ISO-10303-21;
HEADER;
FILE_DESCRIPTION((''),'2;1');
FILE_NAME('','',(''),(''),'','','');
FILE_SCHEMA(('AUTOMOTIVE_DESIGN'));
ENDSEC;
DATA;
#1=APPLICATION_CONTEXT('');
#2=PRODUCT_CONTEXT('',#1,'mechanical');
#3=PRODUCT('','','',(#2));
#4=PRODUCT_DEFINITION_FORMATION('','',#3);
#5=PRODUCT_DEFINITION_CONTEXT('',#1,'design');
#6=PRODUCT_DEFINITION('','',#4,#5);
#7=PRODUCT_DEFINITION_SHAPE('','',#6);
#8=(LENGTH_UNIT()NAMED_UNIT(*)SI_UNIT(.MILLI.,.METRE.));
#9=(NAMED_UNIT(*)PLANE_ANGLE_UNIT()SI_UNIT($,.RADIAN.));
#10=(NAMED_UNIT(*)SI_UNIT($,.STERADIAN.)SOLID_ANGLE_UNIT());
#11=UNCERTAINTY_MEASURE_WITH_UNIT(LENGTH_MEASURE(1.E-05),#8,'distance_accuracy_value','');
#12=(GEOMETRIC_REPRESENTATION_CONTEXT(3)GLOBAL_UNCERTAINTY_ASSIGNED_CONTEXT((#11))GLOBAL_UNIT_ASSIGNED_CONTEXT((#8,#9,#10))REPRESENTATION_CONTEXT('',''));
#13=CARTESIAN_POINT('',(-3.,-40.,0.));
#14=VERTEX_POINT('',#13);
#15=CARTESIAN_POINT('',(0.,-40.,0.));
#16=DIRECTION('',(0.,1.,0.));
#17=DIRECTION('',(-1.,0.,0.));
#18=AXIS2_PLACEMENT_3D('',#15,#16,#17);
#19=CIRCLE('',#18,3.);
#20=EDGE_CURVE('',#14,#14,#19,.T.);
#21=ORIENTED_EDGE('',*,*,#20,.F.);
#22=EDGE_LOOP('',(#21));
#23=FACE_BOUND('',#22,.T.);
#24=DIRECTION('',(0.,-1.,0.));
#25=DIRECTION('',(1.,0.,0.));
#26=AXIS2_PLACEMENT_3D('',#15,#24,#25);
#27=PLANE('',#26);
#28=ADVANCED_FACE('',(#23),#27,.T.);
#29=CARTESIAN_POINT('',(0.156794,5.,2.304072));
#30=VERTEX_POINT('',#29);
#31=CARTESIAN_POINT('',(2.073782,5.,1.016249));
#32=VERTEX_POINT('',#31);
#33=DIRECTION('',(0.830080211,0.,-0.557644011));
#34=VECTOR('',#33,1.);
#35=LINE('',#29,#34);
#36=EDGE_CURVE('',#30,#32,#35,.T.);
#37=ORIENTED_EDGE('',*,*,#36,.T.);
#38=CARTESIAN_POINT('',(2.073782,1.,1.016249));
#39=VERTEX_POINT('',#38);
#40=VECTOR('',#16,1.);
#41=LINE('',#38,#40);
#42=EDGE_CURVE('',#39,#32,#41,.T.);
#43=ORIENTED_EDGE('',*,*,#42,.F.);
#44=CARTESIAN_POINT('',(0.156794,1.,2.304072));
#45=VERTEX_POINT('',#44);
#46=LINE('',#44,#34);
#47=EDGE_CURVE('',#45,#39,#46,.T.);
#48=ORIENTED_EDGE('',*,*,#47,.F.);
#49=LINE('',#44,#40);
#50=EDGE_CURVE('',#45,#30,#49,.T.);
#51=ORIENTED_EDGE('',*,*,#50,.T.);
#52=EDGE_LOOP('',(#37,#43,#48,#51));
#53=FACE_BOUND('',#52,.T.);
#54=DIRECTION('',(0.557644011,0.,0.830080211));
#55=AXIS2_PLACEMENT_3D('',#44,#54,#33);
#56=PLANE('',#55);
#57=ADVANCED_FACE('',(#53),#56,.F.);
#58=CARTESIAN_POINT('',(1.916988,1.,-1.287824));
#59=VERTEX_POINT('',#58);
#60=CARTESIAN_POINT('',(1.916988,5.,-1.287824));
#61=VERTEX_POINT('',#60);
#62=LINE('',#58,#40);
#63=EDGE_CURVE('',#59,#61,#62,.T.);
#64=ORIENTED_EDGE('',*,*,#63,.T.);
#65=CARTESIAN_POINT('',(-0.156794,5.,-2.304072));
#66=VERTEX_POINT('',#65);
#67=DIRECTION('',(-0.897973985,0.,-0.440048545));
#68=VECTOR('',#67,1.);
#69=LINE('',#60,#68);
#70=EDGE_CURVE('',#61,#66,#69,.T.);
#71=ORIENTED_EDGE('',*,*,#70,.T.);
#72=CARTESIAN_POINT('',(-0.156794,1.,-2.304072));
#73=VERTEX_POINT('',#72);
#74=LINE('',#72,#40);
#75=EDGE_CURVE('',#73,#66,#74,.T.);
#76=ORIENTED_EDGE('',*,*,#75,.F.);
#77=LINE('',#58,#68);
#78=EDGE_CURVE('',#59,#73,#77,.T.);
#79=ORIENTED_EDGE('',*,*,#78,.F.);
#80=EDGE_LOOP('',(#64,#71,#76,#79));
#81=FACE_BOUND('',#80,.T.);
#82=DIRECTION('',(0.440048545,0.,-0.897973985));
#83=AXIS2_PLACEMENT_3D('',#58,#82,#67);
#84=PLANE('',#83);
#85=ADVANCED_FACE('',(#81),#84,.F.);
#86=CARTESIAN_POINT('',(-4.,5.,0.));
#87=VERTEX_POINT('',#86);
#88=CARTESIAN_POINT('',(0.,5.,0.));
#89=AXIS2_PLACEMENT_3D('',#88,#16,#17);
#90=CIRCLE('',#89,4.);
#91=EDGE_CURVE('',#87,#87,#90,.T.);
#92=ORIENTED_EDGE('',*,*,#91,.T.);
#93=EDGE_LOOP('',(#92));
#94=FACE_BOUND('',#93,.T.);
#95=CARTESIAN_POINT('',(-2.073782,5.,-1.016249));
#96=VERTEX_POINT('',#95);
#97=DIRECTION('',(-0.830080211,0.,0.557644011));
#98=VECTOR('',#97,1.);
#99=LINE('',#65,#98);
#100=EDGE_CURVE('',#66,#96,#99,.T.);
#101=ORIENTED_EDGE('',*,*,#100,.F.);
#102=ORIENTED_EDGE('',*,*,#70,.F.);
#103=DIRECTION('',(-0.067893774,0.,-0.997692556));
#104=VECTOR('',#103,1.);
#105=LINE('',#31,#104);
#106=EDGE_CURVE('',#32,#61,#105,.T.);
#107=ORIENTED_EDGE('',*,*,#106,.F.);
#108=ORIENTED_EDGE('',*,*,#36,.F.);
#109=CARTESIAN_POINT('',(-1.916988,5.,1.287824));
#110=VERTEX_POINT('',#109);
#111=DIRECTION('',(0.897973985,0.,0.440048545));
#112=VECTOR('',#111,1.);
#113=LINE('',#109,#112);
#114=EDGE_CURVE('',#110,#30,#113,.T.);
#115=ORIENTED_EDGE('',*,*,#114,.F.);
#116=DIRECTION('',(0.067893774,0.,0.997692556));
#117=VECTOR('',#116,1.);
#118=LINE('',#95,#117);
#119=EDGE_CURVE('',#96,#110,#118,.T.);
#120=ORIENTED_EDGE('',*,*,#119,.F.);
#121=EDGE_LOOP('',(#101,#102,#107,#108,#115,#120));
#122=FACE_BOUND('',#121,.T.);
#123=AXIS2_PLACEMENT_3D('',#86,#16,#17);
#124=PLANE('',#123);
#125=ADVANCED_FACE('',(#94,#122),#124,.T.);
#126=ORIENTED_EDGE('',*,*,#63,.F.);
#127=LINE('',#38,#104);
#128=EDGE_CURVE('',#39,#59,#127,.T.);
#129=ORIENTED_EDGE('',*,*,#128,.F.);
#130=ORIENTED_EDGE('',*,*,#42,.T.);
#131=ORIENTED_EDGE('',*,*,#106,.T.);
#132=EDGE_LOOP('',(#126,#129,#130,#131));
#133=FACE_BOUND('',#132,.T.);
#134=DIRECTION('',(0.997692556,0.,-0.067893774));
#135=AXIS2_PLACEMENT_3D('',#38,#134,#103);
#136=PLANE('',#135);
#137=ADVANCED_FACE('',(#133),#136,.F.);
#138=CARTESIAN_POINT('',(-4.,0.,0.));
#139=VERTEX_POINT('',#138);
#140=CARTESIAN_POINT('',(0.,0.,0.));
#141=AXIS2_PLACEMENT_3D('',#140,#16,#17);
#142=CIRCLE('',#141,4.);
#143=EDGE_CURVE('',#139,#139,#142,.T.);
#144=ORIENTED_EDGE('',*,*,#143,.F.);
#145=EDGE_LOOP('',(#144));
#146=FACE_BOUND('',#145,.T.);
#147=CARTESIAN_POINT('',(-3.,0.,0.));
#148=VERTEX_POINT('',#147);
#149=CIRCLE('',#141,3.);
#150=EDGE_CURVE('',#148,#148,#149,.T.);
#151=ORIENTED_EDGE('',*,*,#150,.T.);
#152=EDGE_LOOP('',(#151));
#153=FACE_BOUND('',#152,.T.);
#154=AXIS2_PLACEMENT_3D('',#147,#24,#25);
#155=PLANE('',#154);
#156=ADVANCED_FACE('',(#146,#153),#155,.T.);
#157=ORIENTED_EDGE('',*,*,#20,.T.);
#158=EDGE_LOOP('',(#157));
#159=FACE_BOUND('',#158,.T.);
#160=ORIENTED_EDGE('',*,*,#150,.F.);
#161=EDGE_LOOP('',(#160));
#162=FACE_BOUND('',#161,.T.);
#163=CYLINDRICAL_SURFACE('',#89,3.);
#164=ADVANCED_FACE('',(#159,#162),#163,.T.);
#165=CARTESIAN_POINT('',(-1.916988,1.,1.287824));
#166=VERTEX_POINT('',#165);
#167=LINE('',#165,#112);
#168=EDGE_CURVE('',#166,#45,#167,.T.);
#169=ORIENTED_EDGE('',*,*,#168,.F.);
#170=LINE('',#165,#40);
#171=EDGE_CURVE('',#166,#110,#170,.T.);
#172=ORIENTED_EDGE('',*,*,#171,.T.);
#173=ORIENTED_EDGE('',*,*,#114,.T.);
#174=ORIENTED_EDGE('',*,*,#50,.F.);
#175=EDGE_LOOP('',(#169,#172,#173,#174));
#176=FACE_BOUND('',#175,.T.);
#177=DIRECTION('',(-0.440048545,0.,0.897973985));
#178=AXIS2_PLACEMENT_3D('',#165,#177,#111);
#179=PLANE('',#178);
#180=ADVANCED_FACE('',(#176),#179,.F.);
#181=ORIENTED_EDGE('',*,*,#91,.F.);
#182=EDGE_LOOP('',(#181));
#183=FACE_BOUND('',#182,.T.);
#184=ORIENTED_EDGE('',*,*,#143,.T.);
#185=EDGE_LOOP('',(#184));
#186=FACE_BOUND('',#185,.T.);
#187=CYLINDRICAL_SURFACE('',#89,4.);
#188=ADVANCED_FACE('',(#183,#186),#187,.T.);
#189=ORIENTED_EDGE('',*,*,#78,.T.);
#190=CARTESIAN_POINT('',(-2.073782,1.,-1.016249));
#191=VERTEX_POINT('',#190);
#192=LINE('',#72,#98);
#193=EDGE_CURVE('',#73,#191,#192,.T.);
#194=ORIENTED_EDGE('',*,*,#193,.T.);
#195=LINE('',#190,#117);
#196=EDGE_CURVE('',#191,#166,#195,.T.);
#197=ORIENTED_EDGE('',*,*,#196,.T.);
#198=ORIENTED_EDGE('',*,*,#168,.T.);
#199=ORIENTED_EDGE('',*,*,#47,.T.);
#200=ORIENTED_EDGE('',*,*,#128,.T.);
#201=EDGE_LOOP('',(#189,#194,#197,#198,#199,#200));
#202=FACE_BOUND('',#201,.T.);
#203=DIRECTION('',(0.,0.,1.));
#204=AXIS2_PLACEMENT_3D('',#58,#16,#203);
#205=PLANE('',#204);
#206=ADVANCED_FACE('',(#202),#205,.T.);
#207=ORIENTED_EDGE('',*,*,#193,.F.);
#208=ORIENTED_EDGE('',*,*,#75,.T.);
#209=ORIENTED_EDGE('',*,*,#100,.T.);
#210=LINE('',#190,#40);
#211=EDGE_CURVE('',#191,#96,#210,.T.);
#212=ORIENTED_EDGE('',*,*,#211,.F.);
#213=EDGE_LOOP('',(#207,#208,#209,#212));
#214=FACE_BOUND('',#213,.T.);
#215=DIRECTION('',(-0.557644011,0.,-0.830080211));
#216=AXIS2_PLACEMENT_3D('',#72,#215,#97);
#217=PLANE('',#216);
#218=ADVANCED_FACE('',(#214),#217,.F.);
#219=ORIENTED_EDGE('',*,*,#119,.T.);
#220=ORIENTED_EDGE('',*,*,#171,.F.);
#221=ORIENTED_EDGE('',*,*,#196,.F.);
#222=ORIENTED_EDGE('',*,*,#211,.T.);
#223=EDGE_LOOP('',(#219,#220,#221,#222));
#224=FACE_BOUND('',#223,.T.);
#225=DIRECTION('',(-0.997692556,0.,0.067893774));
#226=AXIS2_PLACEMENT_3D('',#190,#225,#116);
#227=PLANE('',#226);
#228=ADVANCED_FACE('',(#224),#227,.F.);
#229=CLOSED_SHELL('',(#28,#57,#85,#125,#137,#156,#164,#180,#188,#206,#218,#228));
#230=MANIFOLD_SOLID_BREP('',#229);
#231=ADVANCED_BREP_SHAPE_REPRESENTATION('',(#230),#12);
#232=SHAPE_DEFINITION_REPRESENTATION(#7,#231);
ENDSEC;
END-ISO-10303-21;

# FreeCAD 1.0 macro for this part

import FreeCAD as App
import Part
import Sketcher

V = App.Vector


def add_polygon(sketch, points):
    """Adds a closed chain of lines whose ends are joined by coincident constraints."""
    first, n = sketch.GeometryCount, len(points)
    for a, b in zip(points, points[1:] + points[:1]):
        sketch.addGeometry(Part.LineSegment(App.Vector(*a, 0), App.Vector(*b, 0)), False)
    for i in range(n):
        sketch.addConstraint(Sketcher.Constraint("Coincident", first + i, 2, first + (i + 1) % n, 1))

doc = App.newDocument("Part")
body = doc.addObject("PartDesign::Body", "Body")

# Sketch on XY plane
sketch1 = body.newObject("Sketcher::SketchObject", "Sketch")
sketch1.AttachmentSupport = (doc.getObject("XY_Plane"), [""])
sketch1.MapMode = "FlatFace"
add_polygon(sketch1, [(-4, 5), (-4, 0), (-3, 0), (-3, -40), (0, -40), (0, 5)])  # lines 0-5
sketch1.addConstraint([
    Sketcher.Constraint("Vertical", 0),
    Sketcher.Constraint("Horizontal", 1),
    Sketcher.Constraint("Vertical", 2),
    Sketcher.Constraint("Horizontal", 3),
    Sketcher.Constraint("Vertical", 4),
    Sketcher.Constraint("Horizontal", 5),
    Sketcher.Constraint("PointOnObject", 0, 2, -1),
    Sketcher.Constraint("PointOnObject", 3, 2, -2),
    Sketcher.Constraint("DistanceX", 1, 1, 1, 2, 1.0),
    Sketcher.Constraint("DistanceX", 3, 1, 3, 2, 3.0),
    Sketcher.Constraint("DistanceY", 0, 2, 0, 1, 5.0),
    Sketcher.Constraint("DistanceY", 2, 2, 2, 1, 40.0),
])
revolution = body.newObject("PartDesign::Revolution", "Revolution")
revolution.Profile = sketch1
revolution.ReferenceAxis = (sketch1, ["V_Axis"])
revolution.Angle = 360

# Sketch on XZ plane
sketch2 = body.newObject("Sketcher::SketchObject", "Sketch001")
sketch2.AttachmentSupport = (doc.getObject("XZ_Plane"), [""])
sketch2.MapMode = "FlatFace"
sketch2.AttachmentOffset = App.Placement(V(0, 0, -5), App.Rotation())
add_polygon(sketch2, [(1.916988, -1.287824), (-0.156794, -2.304072), (-2.073782, -1.016249), (-1.916988, 1.287824), (0.156794, 2.304072), (2.073782, 1.016249)])  # lines 0-5
sketch2.addConstraint([
    Sketcher.Constraint("Symmetric", 0, 2, 3, 2, -1, 1),
    Sketcher.Constraint("Symmetric", 1, 2, 4, 2, -1, 1),
    Sketcher.Constraint("Symmetric", 2, 2, 5, 2, -1, 1),
    Sketcher.Constraint("Equal", 0, 1),
    Sketcher.Constraint("Equal", 1, 2),
    Sketcher.Constraint("Distance", 0, 2.309401),
    Sketcher.Constraint("DistanceY", 1, 2, -1, 1, 1.016249),
    Sketcher.Constraint("DistanceX", 2, 2, -1, 1, 1.916988),
    Sketcher.Constraint("DistanceX", 1, 2, 0, 2, 1.916988),
])
pocket1 = body.newObject("PartDesign::Pocket", "Pocket")
pocket1.Profile = sketch2
pocket1.Length = 4
pocket1.Reversed = True

doc.recompute()
